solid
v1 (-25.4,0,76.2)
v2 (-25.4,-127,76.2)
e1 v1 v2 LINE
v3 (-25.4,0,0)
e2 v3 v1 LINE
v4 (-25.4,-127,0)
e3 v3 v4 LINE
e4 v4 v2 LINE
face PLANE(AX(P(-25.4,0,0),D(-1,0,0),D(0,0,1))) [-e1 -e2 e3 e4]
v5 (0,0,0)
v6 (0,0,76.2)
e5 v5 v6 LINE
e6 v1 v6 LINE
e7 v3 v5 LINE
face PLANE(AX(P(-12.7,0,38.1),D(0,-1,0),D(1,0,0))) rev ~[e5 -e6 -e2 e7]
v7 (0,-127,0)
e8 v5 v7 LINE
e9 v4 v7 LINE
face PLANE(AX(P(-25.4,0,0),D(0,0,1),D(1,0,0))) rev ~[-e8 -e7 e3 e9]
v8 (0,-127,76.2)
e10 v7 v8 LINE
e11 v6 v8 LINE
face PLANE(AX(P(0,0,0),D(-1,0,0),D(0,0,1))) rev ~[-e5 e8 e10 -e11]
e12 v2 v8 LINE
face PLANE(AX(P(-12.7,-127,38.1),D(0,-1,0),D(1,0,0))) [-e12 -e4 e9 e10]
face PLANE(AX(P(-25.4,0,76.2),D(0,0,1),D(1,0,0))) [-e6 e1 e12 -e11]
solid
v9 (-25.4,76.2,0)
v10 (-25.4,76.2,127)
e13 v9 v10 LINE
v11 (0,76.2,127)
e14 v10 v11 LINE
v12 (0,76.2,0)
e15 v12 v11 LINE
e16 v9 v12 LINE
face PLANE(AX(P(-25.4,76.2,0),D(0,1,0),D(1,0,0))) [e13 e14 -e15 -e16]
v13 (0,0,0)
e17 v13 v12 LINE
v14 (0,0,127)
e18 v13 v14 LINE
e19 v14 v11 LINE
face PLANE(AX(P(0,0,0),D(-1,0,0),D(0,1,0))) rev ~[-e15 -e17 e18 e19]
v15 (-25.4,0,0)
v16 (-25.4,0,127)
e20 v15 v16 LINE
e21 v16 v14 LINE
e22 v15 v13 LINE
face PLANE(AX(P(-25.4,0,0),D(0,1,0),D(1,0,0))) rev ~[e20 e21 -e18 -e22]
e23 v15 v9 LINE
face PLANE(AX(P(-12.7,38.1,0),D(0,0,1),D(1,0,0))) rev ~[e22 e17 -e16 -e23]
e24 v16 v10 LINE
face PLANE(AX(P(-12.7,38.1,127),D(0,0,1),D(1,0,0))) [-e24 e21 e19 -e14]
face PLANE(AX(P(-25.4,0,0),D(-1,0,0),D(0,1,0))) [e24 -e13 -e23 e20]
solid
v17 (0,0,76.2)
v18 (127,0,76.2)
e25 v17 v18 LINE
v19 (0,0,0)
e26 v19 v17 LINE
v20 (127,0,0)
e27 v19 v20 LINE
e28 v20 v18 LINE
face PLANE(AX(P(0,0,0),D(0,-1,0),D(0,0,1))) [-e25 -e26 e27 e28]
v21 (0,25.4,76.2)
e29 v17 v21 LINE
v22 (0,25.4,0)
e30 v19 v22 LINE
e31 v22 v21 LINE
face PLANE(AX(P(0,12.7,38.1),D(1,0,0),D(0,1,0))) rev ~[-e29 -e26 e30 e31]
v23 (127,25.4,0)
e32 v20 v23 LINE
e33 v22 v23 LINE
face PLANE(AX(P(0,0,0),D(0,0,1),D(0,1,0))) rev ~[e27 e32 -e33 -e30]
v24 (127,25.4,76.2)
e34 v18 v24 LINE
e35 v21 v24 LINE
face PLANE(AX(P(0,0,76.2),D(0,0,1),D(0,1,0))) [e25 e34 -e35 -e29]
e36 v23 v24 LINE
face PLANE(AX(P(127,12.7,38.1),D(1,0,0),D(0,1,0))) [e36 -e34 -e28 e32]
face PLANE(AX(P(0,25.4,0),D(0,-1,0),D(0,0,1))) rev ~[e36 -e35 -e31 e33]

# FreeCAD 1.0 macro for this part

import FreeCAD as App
import Part
import Sketcher

V = App.Vector
Q = App.Units.Quantity


def add_polygon(sketch, points):
    """Adds a closed chain of lines whose ends are joined by coincident constraints."""
    first, n = sketch.GeometryCount, len(points)
    for a, b in zip(points, points[1:] + points[:1]):
        sketch.addGeometry(Part.LineSegment(App.Vector(*a, 0), App.Vector(*b, 0)), False)
    for i in range(n):
        sketch.addConstraint(Sketcher.Constraint("Coincident", first + i, 2, first + (i + 1) % n, 1))

doc = App.newDocument("Part")
params = doc.addObject("Spreadsheet::Sheet", "Params")
for row, (alias, value) in enumerate([
    ("sketch1_width", "1 in"),
    ("sketch1_height", "3 in"),
    ("pad1_length", "5 in"),
    ("sketch2_width", "1 in"),
    ("sketch2_height", "3 in"),
    ("pad2_length", "5 in"),
    ("sketch3_width", "1 in"),
    ("sketch3_height", "3 in"),
    ("pad3_length", "5 in"),
], start=1):
    params.set(f"A{row}", alias)
    params.set(f"B{row}", "=" + value)
    params.setAlias(f"B{row}", alias)

body = doc.addObject("PartDesign::Body", "Body")

# Sketch on YZ plane
sketch1 = body.newObject("Sketcher::SketchObject", "Sketch")
sketch1.AttachmentSupport = (doc.getObject("YZ_Plane"), [""])
sketch1.MapMode = "FlatFace"
add_polygon(sketch1, [(0, 76), (0, 0), (25, 0), (25, 76)])  # lines 0-3
sketch1.addConstraint(Sketcher.Constraint("Vertical", 0))
sketch1.addConstraint(Sketcher.Constraint("Horizontal", 1))
sketch1.addConstraint(Sketcher.Constraint("Vertical", 2))
sketch1.addConstraint(Sketcher.Constraint("Horizontal", 3))
sketch1.addConstraint(Sketcher.Constraint("Coincident", 0, 2, -1, 1))
sketch1.addConstraint(Sketcher.Constraint("DistanceX", 1, 1, 1, 2, Q("1 in")))
sketch1.addConstraint(Sketcher.Constraint("DistanceY", 0, 2, 0, 1, Q("3 in")))
sketch1.setExpression("Constraints[9]", "Params.sketch1_width")
sketch1.setExpression("Constraints[10]", "Params.sketch1_height")
pad1 = body.newObject("PartDesign::Pad", "Pad")
pad1.Profile = sketch1
pad1.setExpression("Length", "Params.pad1_length")
body2 = doc.addObject("PartDesign::Body", "Body001")

# Sketch on XZ plane
sketch2 = body2.newObject("Sketcher::SketchObject", "Sketch001")
sketch2.AttachmentSupport = (doc.getObject("XZ_Plane001"), [""])
sketch2.MapMode = "FlatFace"
add_polygon(sketch2, [(-25, 76), (-25, 0), (0, 0), (0, 76)])  # lines 0-3
sketch2.addConstraint(Sketcher.Constraint("Vertical", 0))
sketch2.addConstraint(Sketcher.Constraint("Horizontal", 1))
sketch2.addConstraint(Sketcher.Constraint("Vertical", 2))
sketch2.addConstraint(Sketcher.Constraint("Horizontal", 3))
sketch2.addConstraint(Sketcher.Constraint("Coincident", 1, 2, -1, 1))
sketch2.addConstraint(Sketcher.Constraint("DistanceX", 1, 1, 1, 2, Q("1 in")))
sketch2.addConstraint(Sketcher.Constraint("DistanceY", 0, 2, 0, 1, Q("3 in")))
sketch2.setExpression("Constraints[9]", "Params.sketch2_width")
sketch2.setExpression("Constraints[10]", "Params.sketch2_height")
pad2 = body2.newObject("PartDesign::Pad", "Pad001")
pad2.Profile = sketch2
pad2.setExpression("Length", "Params.pad2_length")
body3 = doc.addObject("PartDesign::Body", "Body002")

# Sketch on XY plane
sketch3 = body3.newObject("Sketcher::SketchObject", "Sketch002")
sketch3.AttachmentSupport = (doc.getObject("XY_Plane002"), [""])
sketch3.MapMode = "FlatFace"
add_polygon(sketch3, [(-25, 76), (-25, 0), (0, 0), (0, 76)])  # lines 0-3
sketch3.addConstraint(Sketcher.Constraint("Vertical", 0))
sketch3.addConstraint(Sketcher.Constraint("Horizontal", 1))
sketch3.addConstraint(Sketcher.Constraint("Vertical", 2))
sketch3.addConstraint(Sketcher.Constraint("Horizontal", 3))
sketch3.addConstraint(Sketcher.Constraint("Coincident", 1, 2, -1, 1))
sketch3.addConstraint(Sketcher.Constraint("DistanceX", 1, 1, 1, 2, Q("1 in")))
sketch3.addConstraint(Sketcher.Constraint("DistanceY", 0, 2, 0, 1, Q("3 in")))
sketch3.setExpression("Constraints[9]", "Params.sketch3_width")
sketch3.setExpression("Constraints[10]", "Params.sketch3_height")
pad3 = body3.newObject("PartDesign::Pad", "Pad002")
pad3.Profile = sketch3
pad3.setExpression("Length", "Params.pad3_length")

doc.recompute()
